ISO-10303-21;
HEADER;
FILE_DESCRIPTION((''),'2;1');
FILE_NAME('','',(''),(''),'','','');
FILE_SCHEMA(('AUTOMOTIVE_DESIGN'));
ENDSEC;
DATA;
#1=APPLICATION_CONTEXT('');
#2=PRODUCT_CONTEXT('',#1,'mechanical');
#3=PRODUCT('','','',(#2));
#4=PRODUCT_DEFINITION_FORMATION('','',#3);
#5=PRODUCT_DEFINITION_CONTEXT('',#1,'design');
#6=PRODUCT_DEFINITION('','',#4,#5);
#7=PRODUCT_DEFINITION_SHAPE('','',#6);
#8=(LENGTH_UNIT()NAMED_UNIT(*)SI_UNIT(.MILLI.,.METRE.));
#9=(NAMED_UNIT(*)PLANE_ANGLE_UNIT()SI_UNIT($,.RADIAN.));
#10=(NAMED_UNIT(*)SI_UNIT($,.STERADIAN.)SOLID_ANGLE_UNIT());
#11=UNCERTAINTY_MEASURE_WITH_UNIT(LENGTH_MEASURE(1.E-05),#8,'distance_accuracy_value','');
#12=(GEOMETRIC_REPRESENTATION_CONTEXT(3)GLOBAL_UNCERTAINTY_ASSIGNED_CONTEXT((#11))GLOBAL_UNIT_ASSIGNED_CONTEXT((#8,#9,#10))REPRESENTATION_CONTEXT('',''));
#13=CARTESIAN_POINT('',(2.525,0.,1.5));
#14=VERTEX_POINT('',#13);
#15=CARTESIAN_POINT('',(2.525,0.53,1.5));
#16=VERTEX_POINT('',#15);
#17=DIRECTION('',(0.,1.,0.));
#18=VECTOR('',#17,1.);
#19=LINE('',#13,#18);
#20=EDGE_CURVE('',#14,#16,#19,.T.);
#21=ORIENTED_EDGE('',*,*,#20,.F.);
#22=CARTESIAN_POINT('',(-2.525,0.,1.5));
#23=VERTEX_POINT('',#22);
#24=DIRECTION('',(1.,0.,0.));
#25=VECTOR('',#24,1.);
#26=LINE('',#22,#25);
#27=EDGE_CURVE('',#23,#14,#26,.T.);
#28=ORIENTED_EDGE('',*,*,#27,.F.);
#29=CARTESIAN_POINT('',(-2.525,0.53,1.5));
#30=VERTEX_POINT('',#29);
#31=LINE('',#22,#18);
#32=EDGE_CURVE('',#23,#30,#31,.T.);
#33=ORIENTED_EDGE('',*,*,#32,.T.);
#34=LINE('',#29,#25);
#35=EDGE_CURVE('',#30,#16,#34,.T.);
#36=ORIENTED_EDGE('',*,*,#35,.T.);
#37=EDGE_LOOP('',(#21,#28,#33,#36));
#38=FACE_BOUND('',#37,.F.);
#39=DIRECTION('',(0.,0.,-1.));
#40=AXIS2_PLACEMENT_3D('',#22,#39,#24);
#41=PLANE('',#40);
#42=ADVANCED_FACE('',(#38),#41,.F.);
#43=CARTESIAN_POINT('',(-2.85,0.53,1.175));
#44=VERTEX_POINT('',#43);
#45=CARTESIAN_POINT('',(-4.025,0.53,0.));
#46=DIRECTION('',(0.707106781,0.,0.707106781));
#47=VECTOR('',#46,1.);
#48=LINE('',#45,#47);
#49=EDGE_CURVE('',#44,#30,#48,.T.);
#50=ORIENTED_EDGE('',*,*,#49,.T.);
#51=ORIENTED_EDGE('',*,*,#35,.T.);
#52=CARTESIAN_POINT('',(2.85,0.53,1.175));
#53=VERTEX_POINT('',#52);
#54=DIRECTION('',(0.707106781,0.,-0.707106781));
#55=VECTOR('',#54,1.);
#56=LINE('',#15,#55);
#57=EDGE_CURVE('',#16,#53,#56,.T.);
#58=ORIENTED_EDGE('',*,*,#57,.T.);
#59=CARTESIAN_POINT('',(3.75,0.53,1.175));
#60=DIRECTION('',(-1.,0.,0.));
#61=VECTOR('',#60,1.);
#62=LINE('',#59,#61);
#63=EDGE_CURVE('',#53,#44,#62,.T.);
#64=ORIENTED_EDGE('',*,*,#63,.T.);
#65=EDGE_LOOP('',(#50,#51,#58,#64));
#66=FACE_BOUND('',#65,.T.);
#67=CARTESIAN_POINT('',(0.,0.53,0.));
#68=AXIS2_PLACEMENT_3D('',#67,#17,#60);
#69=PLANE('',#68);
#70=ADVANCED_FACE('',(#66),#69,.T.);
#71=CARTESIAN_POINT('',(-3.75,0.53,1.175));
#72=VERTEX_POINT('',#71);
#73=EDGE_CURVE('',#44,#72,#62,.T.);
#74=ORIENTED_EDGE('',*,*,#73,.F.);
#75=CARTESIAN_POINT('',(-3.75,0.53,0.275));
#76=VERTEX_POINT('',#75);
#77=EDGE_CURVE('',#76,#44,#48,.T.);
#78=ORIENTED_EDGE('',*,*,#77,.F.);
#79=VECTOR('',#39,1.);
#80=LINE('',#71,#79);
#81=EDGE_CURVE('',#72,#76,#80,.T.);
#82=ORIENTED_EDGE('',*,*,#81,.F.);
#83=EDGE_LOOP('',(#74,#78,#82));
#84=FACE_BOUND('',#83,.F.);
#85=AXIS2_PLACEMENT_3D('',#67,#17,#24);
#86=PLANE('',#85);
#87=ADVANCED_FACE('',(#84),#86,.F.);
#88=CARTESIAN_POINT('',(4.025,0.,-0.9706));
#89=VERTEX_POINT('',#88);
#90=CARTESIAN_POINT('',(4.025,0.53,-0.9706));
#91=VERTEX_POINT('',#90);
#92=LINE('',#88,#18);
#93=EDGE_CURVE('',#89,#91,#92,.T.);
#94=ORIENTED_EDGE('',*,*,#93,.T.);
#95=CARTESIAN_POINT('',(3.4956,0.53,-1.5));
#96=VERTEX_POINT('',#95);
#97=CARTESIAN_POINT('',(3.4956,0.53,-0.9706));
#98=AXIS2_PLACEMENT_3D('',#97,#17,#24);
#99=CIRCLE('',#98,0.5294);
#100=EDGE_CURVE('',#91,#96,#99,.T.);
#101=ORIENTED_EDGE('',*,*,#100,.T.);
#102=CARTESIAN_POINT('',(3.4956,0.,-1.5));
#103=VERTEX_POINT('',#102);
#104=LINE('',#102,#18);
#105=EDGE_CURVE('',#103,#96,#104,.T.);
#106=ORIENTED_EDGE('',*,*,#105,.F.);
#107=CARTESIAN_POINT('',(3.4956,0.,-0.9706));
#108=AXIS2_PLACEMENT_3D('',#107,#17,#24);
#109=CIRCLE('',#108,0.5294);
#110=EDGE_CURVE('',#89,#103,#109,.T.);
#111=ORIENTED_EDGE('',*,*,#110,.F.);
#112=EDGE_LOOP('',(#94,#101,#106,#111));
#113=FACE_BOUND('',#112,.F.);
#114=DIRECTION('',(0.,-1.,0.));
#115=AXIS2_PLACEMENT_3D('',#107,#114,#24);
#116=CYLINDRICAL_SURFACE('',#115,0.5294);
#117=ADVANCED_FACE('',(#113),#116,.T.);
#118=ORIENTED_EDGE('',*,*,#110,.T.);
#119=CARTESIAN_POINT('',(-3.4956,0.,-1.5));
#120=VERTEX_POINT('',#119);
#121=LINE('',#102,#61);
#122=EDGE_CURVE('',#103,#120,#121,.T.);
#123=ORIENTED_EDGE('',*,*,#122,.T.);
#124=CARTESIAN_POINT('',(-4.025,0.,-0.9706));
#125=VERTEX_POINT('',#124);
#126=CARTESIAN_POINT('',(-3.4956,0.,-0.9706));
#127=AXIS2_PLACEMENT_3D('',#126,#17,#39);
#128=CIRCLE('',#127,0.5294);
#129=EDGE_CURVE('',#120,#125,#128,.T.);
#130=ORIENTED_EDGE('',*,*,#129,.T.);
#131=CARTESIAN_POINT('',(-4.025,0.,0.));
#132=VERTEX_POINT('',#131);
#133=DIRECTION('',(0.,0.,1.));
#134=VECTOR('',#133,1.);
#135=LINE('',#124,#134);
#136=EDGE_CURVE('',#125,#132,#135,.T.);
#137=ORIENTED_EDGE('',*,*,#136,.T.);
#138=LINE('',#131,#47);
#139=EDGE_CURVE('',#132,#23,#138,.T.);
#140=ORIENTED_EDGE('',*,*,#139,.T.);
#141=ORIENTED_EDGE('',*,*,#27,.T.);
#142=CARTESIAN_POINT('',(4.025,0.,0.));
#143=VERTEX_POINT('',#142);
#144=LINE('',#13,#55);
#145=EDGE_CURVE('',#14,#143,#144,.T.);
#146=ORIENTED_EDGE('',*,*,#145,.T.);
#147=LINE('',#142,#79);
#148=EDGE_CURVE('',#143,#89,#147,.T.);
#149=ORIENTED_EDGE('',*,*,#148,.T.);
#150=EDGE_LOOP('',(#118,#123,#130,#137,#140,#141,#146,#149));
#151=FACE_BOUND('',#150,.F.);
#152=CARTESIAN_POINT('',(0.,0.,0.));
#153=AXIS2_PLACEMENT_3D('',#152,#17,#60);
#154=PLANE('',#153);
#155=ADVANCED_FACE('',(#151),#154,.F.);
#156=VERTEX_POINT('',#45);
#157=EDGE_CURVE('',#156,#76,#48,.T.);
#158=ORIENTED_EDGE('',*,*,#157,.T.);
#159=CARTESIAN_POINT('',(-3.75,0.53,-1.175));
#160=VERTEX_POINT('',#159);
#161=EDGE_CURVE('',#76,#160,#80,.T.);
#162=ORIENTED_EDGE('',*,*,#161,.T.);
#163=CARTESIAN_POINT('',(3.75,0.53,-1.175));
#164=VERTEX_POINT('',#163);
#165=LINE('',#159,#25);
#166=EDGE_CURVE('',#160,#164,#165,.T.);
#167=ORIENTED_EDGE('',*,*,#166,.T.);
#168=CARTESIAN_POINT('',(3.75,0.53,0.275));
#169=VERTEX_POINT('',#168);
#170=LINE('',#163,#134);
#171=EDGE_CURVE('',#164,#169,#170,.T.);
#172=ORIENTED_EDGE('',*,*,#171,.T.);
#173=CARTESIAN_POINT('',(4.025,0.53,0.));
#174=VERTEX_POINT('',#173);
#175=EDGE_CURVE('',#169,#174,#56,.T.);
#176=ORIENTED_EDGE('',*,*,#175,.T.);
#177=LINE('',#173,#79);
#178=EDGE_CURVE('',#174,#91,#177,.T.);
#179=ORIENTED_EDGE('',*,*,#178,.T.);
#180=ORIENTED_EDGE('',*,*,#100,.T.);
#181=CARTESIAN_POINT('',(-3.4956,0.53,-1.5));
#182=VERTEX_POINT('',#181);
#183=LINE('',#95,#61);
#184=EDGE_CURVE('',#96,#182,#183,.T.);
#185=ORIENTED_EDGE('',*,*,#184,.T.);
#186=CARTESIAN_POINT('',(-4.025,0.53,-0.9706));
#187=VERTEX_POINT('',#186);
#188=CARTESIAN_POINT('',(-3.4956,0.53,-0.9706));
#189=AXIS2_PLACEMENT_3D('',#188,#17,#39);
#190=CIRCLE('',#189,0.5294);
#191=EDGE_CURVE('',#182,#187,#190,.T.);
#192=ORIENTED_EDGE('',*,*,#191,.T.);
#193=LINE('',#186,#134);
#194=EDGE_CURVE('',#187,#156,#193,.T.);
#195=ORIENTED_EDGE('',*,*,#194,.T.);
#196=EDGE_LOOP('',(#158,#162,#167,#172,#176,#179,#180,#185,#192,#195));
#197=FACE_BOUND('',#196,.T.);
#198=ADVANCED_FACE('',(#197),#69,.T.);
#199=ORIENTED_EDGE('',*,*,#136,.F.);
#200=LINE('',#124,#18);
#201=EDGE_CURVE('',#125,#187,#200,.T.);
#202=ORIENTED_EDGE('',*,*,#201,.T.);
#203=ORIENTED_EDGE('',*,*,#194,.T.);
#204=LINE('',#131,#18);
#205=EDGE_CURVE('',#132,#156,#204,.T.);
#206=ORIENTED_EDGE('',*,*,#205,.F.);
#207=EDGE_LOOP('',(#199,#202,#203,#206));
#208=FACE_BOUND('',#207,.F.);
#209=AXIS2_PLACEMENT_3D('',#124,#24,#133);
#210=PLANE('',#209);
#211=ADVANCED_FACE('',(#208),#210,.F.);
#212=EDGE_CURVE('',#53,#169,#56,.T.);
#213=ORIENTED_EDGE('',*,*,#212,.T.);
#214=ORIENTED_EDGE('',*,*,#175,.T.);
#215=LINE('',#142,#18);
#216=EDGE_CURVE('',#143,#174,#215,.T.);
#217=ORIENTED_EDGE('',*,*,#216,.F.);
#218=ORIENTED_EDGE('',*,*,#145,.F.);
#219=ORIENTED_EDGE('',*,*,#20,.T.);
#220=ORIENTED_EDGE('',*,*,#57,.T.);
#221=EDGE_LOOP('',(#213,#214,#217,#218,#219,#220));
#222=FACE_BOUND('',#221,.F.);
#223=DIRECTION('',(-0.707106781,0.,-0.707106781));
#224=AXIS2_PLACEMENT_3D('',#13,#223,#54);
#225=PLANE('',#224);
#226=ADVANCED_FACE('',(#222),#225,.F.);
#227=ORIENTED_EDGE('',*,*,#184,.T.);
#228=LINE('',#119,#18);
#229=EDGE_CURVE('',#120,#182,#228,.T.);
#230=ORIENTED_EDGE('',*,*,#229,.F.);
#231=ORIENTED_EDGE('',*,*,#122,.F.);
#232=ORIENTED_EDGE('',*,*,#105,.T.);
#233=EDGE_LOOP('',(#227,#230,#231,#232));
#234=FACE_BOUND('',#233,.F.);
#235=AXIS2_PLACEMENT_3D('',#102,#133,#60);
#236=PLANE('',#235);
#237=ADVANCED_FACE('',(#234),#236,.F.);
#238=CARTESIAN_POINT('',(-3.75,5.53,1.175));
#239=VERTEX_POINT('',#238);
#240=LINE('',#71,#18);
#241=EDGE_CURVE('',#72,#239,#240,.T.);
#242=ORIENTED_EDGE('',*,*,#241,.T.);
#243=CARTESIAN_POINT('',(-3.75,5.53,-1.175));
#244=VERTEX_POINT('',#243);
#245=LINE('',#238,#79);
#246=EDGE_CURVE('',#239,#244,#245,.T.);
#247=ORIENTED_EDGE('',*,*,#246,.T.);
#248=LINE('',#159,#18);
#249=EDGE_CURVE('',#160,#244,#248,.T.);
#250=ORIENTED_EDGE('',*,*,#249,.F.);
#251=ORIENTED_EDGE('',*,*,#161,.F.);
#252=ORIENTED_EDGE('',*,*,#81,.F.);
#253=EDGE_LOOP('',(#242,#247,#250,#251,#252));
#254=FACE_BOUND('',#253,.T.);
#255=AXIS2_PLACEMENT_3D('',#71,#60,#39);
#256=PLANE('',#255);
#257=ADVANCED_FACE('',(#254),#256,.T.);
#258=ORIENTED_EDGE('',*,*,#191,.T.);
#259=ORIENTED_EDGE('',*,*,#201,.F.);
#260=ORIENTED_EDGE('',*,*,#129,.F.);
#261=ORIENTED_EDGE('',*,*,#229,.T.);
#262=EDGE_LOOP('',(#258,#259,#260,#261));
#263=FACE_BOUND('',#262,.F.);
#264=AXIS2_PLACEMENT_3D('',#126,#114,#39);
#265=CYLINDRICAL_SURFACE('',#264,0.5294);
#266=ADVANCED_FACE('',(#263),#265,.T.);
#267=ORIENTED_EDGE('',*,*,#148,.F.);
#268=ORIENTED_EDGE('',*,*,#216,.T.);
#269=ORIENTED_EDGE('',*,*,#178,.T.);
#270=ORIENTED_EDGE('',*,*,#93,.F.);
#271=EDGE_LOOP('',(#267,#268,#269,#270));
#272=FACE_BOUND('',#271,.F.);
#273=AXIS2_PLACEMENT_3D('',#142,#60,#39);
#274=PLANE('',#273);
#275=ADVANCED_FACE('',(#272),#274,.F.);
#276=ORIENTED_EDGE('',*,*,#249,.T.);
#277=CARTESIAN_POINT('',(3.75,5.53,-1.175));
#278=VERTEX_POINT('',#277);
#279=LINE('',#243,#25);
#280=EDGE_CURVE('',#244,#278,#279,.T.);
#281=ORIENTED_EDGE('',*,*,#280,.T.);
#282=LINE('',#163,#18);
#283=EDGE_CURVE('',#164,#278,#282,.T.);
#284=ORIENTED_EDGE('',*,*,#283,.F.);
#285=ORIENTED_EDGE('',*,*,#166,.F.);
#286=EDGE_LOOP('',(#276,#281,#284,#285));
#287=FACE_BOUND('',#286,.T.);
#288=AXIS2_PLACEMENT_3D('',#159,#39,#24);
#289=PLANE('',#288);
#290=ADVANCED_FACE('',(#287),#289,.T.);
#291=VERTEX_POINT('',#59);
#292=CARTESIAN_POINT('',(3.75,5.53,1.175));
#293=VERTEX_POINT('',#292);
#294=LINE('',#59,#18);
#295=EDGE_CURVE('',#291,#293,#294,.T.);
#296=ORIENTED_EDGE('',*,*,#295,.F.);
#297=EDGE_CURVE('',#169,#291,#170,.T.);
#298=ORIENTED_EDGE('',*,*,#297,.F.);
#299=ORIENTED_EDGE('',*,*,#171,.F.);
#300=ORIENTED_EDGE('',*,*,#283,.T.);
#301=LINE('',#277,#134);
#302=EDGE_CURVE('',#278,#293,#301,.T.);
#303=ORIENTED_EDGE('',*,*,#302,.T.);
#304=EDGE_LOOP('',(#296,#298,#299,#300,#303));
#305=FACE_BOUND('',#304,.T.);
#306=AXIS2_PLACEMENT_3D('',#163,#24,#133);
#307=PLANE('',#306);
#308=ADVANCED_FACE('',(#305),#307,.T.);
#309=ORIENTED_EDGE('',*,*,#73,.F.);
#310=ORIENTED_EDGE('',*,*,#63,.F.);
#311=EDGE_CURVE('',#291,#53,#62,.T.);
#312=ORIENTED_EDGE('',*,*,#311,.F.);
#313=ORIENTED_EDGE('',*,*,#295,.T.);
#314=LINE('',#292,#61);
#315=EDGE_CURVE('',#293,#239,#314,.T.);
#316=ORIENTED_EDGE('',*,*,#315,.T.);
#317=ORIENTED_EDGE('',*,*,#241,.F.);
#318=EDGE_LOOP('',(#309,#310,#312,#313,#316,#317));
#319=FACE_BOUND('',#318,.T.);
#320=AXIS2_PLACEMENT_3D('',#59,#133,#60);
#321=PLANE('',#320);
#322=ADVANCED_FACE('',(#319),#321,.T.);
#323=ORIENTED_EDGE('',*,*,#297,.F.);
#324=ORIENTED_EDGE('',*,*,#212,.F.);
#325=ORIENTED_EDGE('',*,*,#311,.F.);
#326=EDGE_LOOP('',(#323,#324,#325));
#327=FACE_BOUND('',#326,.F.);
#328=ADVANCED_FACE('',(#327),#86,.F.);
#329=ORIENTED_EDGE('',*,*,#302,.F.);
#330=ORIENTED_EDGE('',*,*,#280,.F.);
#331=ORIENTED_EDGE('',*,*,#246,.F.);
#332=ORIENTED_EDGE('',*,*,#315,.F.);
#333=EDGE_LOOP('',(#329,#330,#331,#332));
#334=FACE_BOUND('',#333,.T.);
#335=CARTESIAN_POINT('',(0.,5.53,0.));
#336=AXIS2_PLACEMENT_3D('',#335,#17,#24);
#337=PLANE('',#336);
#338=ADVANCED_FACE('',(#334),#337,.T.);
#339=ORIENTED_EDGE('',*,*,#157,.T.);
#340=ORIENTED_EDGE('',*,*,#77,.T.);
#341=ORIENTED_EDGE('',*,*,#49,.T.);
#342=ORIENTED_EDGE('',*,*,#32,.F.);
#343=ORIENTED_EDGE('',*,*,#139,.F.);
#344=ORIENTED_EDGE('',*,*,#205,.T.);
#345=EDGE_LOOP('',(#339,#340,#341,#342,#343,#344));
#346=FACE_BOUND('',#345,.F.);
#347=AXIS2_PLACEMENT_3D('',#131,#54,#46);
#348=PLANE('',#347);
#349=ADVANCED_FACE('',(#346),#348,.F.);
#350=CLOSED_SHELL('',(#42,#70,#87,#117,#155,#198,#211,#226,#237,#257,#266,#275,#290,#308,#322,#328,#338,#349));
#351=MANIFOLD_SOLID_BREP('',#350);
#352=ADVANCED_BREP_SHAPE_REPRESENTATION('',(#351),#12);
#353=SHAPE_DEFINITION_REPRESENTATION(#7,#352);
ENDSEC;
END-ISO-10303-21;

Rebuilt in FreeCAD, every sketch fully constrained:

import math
import FreeCAD as App
import Part
import Sketcher

V = App.Vector


def add_polygon(sketch, points):
    """Adds a closed chain of lines whose ends are joined by coincident constraints."""
    first, n = sketch.GeometryCount, len(points)
    for a, b in zip(points, points[1:] + points[:1]):
        sketch.addGeometry(Part.LineSegment(App.Vector(*a, 0), App.Vector(*b, 0)), False)
    for i in range(n):
        sketch.addConstraint(Sketcher.Constraint("Coincident", first + i, 2, first + (i + 1) % n, 1))

doc = App.newDocument("Part")
body = doc.addObject("PartDesign::Body", "Body")

sketch1 = body.newObject("Sketcher::SketchObject", "Sketch")
sketch1.AttachmentSupport = (doc.getObject("XZ_Plane"), [""])
sketch1.MapMode = "FlatFace"
sketch1.addGeometry(Part.ArcOfCircle(Part.Circle(V(-3.5, -1, 0), V(0, 0, 1), 0.5), math.radians(180), math.radians(270)), False)
sketch1.addGeometry(Part.LineSegment(V(-4, -1, 0), V(-4, 0, 0)), False)
sketch1.addGeometry(Part.LineSegment(V(-4, 0, 0), V(-2.5, 1.5, 0)), False)
sketch1.addGeometry(Part.LineSegment(V(-2.5, 1.5, 0), V(2.5, 1.5, 0)), False)
sketch1.addGeometry(Part.LineSegment(V(2.5, 1.5, 0), V(4, 0, 0)), False)
sketch1.addGeometry(Part.LineSegment(V(4, 0, 0), V(4, -1, 0)), False)
sketch1.addGeometry(Part.ArcOfCircle(Part.Circle(V(3.5, -1, 0), V(0, 0, 1), 0.5), math.radians(-90), math.radians(0)), False)
sketch1.addGeometry(Part.LineSegment(V(3.5, -1.5, 0), V(-3.5, -1.5, 0)), False)
sketch1.addConstraint(Sketcher.Constraint("Tangent", 0, 1, 1, 1))
sketch1.addConstraint(Sketcher.Constraint("Coincident", 1, 2, 2, 1))
sketch1.addConstraint(Sketcher.Constraint("Coincident", 2, 2, 3, 1))
sketch1.addConstraint(Sketcher.Constraint("Coincident", 3, 2, 4, 1))
sketch1.addConstraint(Sketcher.Constraint("Coincident", 4, 2, 5, 1))
sketch1.addConstraint(Sketcher.Constraint("Tangent", 5, 2, 6, 2))
sketch1.addConstraint(Sketcher.Constraint("Tangent", 6, 1, 7, 1))
sketch1.addConstraint(Sketcher.Constraint("Tangent", 7, 2, 0, 2))
sketch1.addConstraint(Sketcher.Constraint("Vertical", 1))
sketch1.addConstraint(Sketcher.Constraint("Horizontal", 3))
sketch1.addConstraint(Sketcher.Constraint("Vertical", 5))
sketch1.addConstraint(Sketcher.Constraint("Horizontal", 7))
sketch1.addConstraint(Sketcher.Constraint("Equal", 0, 6))
sketch1.addConstraint(Sketcher.Constraint("Symmetric", 1, 2, 4, 2, -1, 1))
sketch1.addConstraint(Sketcher.Constraint("PointOnObject", 1, 2, -1))
sketch1.addConstraint(Sketcher.Constraint("Perpendicular", 2, 4))
sketch1.addConstraint(Sketcher.Constraint("Equal", 2, 4))
sketch1.addConstraint(Sketcher.Constraint("DistanceY", 6, 1, 3, 2, 3.0))
sketch1.addConstraint(Sketcher.Constraint("DistanceX", 1, 2, 4, 2, 8.05))
sketch1.addConstraint(Sketcher.Constraint("DistanceX", 3, 1, 3, 2, 5.05))
sketch1.addConstraint(Sketcher.Constraint("Radius", 0, 0.5294))
pad1 = body.newObject("PartDesign::Pad", "Pad")
pad1.Profile = sketch1
pad1.Length = 0.53
pad1.Reversed = True

sketch2 = body.newObject("Sketcher::SketchObject", "Sketch001")
sketch2.AttachmentSupport = (doc.getObject("XZ_Plane"), [""])
sketch2.MapMode = "FlatFace"
sketch2.AttachmentOffset = App.Placement(V(0, 0, -0.53), App.Rotation())
add_polygon(sketch2, [(3.8, -1.2), (-3.8, -1.2), (-3.8, 1.2), (3.8, 1.2)])
sketch2.addConstraint(Sketcher.Constraint("Horizontal", 0))
sketch2.addConstraint(Sketcher.Constraint("Vertical", 1))
sketch2.addConstraint(Sketcher.Constraint("Horizontal", 2))
sketch2.addConstraint(Sketcher.Constraint("Vertical", 3))
sketch2.addConstraint(Sketcher.Constraint("Symmetric", 0, 2, 2, 2, -1, 1))
sketch2.addConstraint(Sketcher.Constraint("DistanceX", 0, 2, 0, 1, 7.5))
sketch2.addConstraint(Sketcher.Constraint("DistanceY", 1, 1, 1, 2, 2.35))
pad2 = body.newObject("PartDesign::Pad", "Pad001")
pad2.Profile = sketch2
pad2.Length = 5
pad2.Reversed = True

doc.recompute()
